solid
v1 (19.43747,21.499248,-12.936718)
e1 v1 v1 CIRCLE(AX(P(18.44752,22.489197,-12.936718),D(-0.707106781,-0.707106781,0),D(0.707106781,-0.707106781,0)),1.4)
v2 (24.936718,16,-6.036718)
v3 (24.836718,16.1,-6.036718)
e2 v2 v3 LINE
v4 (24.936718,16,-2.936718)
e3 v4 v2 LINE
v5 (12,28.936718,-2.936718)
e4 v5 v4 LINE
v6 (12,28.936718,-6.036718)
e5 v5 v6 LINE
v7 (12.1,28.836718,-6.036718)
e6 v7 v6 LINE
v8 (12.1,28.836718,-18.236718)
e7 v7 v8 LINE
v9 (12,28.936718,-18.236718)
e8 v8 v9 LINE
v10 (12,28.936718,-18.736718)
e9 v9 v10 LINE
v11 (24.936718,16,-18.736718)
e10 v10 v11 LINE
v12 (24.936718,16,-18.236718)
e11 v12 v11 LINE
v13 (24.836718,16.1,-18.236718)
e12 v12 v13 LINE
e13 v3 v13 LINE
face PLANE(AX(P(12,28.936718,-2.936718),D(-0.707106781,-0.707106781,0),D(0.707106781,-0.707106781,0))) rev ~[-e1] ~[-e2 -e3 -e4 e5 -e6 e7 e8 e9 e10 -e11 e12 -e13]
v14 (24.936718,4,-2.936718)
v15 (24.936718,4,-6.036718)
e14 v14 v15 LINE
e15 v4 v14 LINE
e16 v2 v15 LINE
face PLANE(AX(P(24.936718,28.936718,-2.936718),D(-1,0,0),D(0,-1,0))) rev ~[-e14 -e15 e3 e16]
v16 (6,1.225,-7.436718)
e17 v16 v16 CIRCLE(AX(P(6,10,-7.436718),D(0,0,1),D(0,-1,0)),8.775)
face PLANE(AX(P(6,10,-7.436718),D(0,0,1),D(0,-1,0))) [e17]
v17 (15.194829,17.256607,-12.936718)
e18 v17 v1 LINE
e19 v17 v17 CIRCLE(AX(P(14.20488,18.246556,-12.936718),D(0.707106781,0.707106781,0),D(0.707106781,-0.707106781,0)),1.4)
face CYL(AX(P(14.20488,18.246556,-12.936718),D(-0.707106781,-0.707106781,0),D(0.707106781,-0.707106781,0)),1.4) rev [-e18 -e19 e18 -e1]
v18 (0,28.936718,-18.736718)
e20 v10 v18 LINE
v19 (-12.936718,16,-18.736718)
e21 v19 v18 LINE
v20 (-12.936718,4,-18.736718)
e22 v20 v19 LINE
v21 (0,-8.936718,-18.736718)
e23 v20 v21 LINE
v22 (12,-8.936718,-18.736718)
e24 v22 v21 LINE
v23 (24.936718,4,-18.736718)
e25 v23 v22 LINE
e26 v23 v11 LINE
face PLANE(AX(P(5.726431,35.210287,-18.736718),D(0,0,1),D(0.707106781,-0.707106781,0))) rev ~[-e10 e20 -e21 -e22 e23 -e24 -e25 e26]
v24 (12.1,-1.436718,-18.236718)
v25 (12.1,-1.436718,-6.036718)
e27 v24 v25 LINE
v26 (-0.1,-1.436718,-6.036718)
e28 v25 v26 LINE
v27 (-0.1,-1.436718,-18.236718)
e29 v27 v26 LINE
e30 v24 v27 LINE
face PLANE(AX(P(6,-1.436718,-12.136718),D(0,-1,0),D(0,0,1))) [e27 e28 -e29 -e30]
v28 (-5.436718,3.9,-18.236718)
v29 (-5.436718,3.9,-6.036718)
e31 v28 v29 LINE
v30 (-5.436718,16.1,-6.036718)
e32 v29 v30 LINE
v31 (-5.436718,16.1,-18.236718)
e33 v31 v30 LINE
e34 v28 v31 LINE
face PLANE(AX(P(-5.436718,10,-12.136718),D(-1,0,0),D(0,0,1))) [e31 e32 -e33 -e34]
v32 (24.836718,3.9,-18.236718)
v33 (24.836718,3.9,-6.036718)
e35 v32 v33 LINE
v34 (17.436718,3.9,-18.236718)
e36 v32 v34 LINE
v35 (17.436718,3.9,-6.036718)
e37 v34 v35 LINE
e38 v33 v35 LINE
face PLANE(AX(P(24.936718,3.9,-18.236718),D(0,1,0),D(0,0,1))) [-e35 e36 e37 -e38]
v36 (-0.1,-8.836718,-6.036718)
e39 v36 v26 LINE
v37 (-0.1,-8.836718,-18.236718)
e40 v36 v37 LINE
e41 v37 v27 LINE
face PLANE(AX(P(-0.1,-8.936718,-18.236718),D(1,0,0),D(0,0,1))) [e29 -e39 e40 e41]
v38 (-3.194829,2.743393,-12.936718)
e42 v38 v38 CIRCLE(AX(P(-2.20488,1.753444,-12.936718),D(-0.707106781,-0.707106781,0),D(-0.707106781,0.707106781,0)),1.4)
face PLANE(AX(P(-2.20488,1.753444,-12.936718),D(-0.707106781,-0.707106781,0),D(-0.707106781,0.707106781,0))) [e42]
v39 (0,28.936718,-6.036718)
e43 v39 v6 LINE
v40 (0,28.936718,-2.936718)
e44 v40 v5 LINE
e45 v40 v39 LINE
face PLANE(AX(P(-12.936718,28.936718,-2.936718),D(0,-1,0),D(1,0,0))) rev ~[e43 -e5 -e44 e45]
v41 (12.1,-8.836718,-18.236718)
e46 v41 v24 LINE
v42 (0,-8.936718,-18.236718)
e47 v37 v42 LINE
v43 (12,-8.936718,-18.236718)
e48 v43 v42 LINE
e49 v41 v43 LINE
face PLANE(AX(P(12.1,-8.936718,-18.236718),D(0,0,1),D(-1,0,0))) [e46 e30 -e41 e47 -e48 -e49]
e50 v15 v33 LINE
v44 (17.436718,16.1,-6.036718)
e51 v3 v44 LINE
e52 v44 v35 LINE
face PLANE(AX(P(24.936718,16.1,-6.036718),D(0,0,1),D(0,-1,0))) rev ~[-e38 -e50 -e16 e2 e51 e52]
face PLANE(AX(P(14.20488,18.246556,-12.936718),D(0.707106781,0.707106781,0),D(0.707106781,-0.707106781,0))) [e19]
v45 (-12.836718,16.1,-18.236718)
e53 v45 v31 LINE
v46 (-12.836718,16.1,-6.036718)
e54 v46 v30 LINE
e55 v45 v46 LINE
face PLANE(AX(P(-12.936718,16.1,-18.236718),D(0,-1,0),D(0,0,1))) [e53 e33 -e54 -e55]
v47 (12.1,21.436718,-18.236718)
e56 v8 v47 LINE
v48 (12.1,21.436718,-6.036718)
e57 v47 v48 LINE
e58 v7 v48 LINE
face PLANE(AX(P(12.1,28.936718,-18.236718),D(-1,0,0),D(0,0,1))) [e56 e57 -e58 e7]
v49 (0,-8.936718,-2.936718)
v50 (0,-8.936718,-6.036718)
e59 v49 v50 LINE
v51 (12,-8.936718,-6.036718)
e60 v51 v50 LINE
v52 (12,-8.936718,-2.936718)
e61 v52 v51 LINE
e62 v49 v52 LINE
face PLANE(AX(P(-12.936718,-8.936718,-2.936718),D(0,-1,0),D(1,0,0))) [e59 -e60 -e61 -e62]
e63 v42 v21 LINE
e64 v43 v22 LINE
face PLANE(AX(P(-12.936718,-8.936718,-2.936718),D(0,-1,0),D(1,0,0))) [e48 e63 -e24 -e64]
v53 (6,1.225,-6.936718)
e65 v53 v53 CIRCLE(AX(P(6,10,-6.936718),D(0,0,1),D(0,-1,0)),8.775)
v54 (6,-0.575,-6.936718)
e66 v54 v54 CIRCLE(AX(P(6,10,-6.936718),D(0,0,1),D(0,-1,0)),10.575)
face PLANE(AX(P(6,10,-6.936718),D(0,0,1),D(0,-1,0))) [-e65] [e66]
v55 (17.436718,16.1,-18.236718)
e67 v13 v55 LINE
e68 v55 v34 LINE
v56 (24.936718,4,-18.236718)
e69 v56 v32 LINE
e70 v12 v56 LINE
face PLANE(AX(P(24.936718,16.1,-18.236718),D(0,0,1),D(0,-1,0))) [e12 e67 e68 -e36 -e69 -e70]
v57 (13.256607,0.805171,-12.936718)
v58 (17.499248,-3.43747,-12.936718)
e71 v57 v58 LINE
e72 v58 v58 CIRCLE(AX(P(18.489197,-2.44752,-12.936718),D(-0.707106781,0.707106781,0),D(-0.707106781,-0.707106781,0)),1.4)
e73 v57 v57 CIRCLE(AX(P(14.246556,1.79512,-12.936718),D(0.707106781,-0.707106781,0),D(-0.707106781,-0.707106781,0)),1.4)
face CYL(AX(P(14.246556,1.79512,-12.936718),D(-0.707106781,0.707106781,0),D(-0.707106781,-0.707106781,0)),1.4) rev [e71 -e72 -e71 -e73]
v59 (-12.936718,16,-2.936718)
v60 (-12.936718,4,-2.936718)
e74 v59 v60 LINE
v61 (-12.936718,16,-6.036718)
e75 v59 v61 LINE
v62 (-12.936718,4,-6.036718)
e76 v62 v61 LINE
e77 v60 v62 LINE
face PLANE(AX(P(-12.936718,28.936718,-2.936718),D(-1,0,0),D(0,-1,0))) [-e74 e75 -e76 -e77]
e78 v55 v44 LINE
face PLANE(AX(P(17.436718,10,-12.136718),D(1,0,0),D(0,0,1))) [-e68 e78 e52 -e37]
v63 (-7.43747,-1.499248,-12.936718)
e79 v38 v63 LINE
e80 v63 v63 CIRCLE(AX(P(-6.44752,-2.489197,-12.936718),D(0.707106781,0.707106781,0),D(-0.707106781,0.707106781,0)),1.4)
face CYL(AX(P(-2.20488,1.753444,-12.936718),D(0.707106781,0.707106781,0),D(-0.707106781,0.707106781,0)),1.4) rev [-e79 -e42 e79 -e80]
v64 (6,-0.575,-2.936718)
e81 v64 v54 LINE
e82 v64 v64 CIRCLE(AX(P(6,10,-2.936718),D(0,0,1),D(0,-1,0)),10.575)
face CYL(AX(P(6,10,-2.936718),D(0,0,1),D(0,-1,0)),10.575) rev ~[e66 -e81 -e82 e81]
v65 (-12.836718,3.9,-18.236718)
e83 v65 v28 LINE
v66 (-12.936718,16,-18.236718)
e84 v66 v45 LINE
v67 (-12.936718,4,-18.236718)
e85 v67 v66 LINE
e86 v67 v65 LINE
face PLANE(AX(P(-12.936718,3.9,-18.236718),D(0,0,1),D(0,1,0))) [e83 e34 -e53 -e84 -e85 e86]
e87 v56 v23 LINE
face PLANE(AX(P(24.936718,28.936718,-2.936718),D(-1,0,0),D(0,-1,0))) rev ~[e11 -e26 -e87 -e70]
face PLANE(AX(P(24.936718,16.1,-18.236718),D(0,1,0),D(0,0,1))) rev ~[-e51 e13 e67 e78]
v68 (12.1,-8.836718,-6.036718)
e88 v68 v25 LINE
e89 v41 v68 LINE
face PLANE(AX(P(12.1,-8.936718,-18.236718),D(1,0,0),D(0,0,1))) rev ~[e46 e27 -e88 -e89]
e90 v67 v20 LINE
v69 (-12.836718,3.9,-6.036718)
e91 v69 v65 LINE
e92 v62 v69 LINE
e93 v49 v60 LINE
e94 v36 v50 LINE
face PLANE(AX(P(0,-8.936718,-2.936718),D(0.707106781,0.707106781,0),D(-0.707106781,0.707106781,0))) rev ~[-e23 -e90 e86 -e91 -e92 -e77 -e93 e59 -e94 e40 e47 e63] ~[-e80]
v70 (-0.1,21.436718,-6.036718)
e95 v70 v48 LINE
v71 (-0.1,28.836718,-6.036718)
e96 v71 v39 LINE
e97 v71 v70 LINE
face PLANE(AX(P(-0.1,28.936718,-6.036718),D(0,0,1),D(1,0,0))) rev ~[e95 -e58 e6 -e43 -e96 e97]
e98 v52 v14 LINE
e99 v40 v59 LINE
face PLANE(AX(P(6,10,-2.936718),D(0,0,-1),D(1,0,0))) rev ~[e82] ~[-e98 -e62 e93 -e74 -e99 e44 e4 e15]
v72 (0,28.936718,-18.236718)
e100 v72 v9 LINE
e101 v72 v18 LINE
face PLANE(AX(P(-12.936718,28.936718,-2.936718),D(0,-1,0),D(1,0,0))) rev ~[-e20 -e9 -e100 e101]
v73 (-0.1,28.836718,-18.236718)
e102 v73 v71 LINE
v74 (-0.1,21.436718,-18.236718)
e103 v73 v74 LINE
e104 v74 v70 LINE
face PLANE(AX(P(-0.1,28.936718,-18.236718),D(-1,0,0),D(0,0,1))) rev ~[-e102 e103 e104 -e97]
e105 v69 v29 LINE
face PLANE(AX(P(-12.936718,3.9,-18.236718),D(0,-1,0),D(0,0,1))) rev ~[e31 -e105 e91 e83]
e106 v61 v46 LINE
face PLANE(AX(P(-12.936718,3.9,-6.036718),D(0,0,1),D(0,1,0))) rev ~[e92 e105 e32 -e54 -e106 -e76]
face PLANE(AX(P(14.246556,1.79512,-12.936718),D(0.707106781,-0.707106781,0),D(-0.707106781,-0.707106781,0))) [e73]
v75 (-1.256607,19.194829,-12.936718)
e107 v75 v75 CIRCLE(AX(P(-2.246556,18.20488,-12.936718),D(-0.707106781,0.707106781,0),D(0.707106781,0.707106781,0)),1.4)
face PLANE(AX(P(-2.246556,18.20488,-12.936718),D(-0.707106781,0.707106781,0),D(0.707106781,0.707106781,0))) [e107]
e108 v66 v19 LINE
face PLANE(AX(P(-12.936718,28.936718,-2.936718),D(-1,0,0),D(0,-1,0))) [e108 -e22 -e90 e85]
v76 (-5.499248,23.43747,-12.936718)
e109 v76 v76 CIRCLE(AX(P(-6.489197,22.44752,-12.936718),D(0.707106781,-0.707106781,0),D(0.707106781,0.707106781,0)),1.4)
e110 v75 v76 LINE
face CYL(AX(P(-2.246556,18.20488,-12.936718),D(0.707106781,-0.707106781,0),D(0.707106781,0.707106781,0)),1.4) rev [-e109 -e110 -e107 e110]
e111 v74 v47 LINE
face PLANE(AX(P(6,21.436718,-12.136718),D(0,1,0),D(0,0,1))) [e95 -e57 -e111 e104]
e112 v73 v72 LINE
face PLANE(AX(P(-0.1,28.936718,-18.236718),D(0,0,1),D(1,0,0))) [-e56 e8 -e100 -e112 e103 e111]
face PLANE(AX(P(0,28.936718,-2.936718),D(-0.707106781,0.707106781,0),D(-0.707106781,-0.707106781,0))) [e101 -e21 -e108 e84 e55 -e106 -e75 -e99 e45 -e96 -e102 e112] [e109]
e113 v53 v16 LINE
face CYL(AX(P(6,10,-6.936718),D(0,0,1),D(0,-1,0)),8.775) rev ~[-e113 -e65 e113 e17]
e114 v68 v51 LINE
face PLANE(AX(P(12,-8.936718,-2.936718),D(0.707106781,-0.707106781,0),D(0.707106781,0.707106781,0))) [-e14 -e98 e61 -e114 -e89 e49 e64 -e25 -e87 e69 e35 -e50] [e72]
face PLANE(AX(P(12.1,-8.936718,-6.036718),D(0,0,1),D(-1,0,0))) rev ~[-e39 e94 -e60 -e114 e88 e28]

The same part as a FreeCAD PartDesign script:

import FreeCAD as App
import Part
import Sketcher

V = App.Vector


def edges_at(feature, points):
    """Names of the edges that pass closest to the given points."""
    edges = feature.Shape.Edges
    near = lambda p: min(range(len(edges)), key=lambda i: edges[i].distToShape(Part.Vertex(*p))[0])
    return sorted({f"Edge{near(p) + 1}" for p in points})


def add_polygon(sketch, points):
    """Adds a closed chain of lines whose ends are joined by coincident constraints."""
    first, n = sketch.GeometryCount, len(points)
    for a, b in zip(points, points[1:] + points[:1]):
        sketch.addGeometry(Part.LineSegment(App.Vector(*a, 0), App.Vector(*b, 0)), False)
    for i in range(n):
        sketch.addConstraint(Sketcher.Constraint("Coincident", first + i, 2, first + (i + 1) % n, 1))

doc = App.newDocument("Part")
body = doc.addObject("PartDesign::Body", "Body")

sketch1 = body.newObject("Sketcher::SketchObject", "Sketch")
sketch1.AttachmentSupport = (doc.getObject("XZ_Plane"), [""])
sketch1.MapMode = "FlatFace"
add_polygon(sketch1, [(-13, -32), (-13, 6), (25, 6), (25, -32)])
sketch1.addConstraint(Sketcher.Constraint("Vertical", 0))
sketch1.addConstraint(Sketcher.Constraint("Horizontal", 1))
sketch1.addConstraint(Sketcher.Constraint("Vertical", 2))
sketch1.addConstraint(Sketcher.Constraint("Horizontal", 3))
sketch1.addConstraint(Sketcher.Constraint("Equal", 3, 0))
sketch1.addConstraint(Sketcher.Constraint("DistanceY", -1, 1, 0, 2, 6.0))
sketch1.addConstraint(Sketcher.Constraint("DistanceX", 1, 1, 1, 2, 37.873435))
sketch1.addConstraint(Sketcher.Constraint("DistanceX", 0, 2, -1, 1, 12.936718))
pad1 = body.newObject("PartDesign::Pad", "Pad")
pad1.Profile = sketch1
pad1.Length = 20
pad1.Reversed = True

sketch2 = body.newObject("Sketcher::SketchObject", "Sketch001")
sketch2.AttachmentSupport = (doc.getObject("XZ_Plane"), [""])
sketch2.MapMode = "FlatFace"
sketch2.addGeometry(Part.Circle(V(6, -13, 0), V(0, 0, 1), 11), False)
sketch2.addConstraint(Sketcher.Constraint("Diameter", 0, 21.15))
sketch2.addConstraint(Sketcher.Constraint("DistanceX", -1, 1, 0, 3, 6.0))
sketch2.addConstraint(Sketcher.Constraint("DistanceY", 0, 3, -1, 1, 12.936718))
pocket1 = body.newObject("PartDesign::Pocket", "Pocket")
pocket1.Profile = sketch2
pocket1.Length = 4

sketch3 = body.newObject("Sketcher::SketchObject", "Sketch002")
sketch3.AttachmentSupport = (doc.getObject("XY_Plane"), [""])
sketch3.MapMode = "FlatFace"
sketch3.AttachmentOffset = App.Placement(V(0, 0, 6), App.Rotation())
add_polygon(sketch3, [(0, 15), (0, 3), (12, 3), (12, 15)])
sketch3.addConstraint(Sketcher.Constraint("Vertical", 0))
sketch3.addConstraint(Sketcher.Constraint("Horizontal", 1))
sketch3.addConstraint(Sketcher.Constraint("Vertical", 2))
sketch3.addConstraint(Sketcher.Constraint("Horizontal", 3))
sketch3.addConstraint(Sketcher.Constraint("PointOnObject", 0, 2, -2))
sketch3.addConstraint(Sketcher.Constraint("Equal", 3, 0))
sketch3.addConstraint(Sketcher.Constraint("DistanceX", 1, 1, 1, 2, 12.0))
sketch3.addConstraint(Sketcher.Constraint("DistanceY", -1, 1, 0, 2, 3.2))
pocket2 = body.newObject("PartDesign::Pocket", "Pocket001")
pocket2.Profile = sketch3
pocket2.Length = 7.5
doc.recompute()

fillet = body.newObject("PartDesign::Fillet", "Fillet")
fillet.Base = (pocket2, edges_at(pocket2, [
    (24.937, 10, -31.873),
    (24.937, 10, 6),
    (-12.937, 10, 6),
    (-12.937, 10, -31.873),
]))
fillet.Radius = 8
doc.recompute()

datumline = body.newObject("PartDesign::Line", "DatumLine")
datumline.Placement = App.Placement(V(6, 0, -12.936718), App.Rotation(V(0, 0, 1), V(0, 1, 0)))
polarpattern = body.newObject("PartDesign::PolarPattern", "PolarPattern")
polarpattern.Originals = [pocket2]
polarpattern.Axis = (datumline, [""])
polarpattern.Angle = 360
polarpattern.Occurrences = 4
body.Tip = polarpattern

sketch4 = body.newObject("Sketcher::SketchObject", "Sketch003")
sketch4.AttachmentSupport = (doc.getObject("XZ_Plane"), [""])
sketch4.MapMode = "FlatFace"
sketch4.AttachmentOffset = App.Placement(V(0, 0, -4), App.Rotation())
sketch4.addGeometry(Part.Circle(V(6, -13, 0), V(0, 0, 1), 9), False)
sketch4.addConstraint(Sketcher.Constraint("Diameter", 0, 17.55))
sketch4.addConstraint(Sketcher.Constraint("DistanceX", -1, 1, 0, 3, 6.0))
sketch4.addConstraint(Sketcher.Constraint("DistanceY", 0, 3, -1, 1, 12.936718))
pocket3 = body.newObject("PartDesign::Pocket", "Pocket002")
pocket3.Profile = sketch4
pocket3.Length = 0.5
body2 = doc.addObject("PartDesign::Body", "Body001")
doc.recompute()

body.Placement = App.Placement(V(0, 22.936718, -2.936718), App.Rotation(V(-1, 0, 0), 90))
boolean = body2.newObject("PartDesign::Boolean", "Boolean")
boolean.Type = "Fuse"
boolean.addObjects([body])

sketch5 = body2.newObject("Sketcher::SketchObject", "Sketch004")
sketch5.AttachmentSupport = (doc.getObject("XY_Plane001"), [""])
sketch5.MapMode = "FlatFace"
sketch5.AttachmentOffset = App.Placement(V(0, 0, -2.936718), App.Rotation())
add_polygon(sketch5, [(-13, 16), (0, 29), (-13, 29)])
add_polygon(sketch5, [(25, 16), (25, 29), (12, 29)])
add_polygon(sketch5, [(25, 4), (12, -9), (25, -9)])
add_polygon(sketch5, [(-13, -9), (0, -9), (-13, 4)])
sketch5.addConstraint(Sketcher.Constraint("Horizontal", 1))
sketch5.addConstraint(Sketcher.Constraint("Vertical", 2))
sketch5.addConstraint(Sketcher.Constraint("Vertical", 3))
sketch5.addConstraint(Sketcher.Constraint("Horizontal", 4))
sketch5.addConstraint(Sketcher.Constraint("Horizontal", 7))
sketch5.addConstraint(Sketcher.Constraint("Vertical", 8))
sketch5.addConstraint(Sketcher.Constraint("Horizontal", 9))
sketch5.addConstraint(Sketcher.Constraint("Vertical", 11))
sketch5.addConstraint(Sketcher.Constraint("PointOnObject", 0, 2, -2))
sketch5.addConstraint(Sketcher.Constraint("PointOnObject", 9, 2, -2))
sketch5.addConstraint(Sketcher.Constraint("Perpendicular", 0, 5))
sketch5.addConstraint(Sketcher.Constraint("Perpendicular", 5, 6))
sketch5.addConstraint(Sketcher.Constraint("Perpendicular", 6, 10))
sketch5.addConstraint(Sketcher.Constraint("Horizontal", 1, 2, 3, 2))
sketch5.addConstraint(Sketcher.Constraint("Horizontal", 2, 2, 5, 2))
sketch5.addConstraint(Sketcher.Constraint("Horizontal", 7, 2, 9, 2))
sketch5.addConstraint(Sketcher.Constraint("Horizontal", 8, 2, 10, 2))
sketch5.addConstraint(Sketcher.Constraint("Vertical", 4, 2, 6, 2))
sketch5.addConstraint(Sketcher.Constraint("Vertical", 5, 2, 7, 2))
sketch5.addConstraint(Sketcher.Constraint("Vertical", 2, 2, 10, 2))
sketch5.addConstraint(Sketcher.Constraint("DistanceY", -1, 1, 2, 2, 16.0))
sketch5.addConstraint(Sketcher.Constraint("DistanceX", -1, 1, 4, 2, 12.0))
sketch5.addConstraint(Sketcher.Constraint("DistanceY", -1, 1, 8, 2, 4.0))
sketch5.addConstraint(Sketcher.Constraint("Distance", 0, 18.295281))
pocket4 = body2.newObject("PartDesign::Pocket", "Pocket003")
pocket4.Profile = sketch5
pocket4.Type = "ThroughAll"

sketch6 = body2.newObject("Sketcher::SketchObject", "Sketch005")
sketch6.Placement = App.Placement(V(-10.225718, 10.225718, 0), App.Rotation(V(0.707106781, 0.707106781, 0), V(0, 0, -0.999999999), V(-0.707106781, 0.707106781, 0), "ZXY"))
sketch6.addGeometry(Part.Circle(V(11.3, 12.9, 0), V(0, 0, 1), 1.4), False)
sketch6.addConstraint(Sketcher.Constraint("Diameter", 0, 2.8))
sketch6.addConstraint(Sketcher.Constraint("DistanceX", -1, 1, 0, 3, 11.284239))
sketch6.addConstraint(Sketcher.Constraint("DistanceY", -1, 1, 0, 3, 12.936718))
pocket5 = body2.newObject("PartDesign::Pocket", "Pocket004")
pocket5.Profile = sketch6
pocket5.Length = 16
pocket5.Reversed = True
doc.recompute()

datumline2 = body2.newObject("PartDesign::Line", "DatumLine001")
datumline2.Placement = App.Placement(V(6, 10, 0), App.Rotation(V(0, 0, 1), V(0, 0, 1)))
polarpattern2 = body2.newObject("PartDesign::PolarPattern", "PolarPattern001")
polarpattern2.Originals = [pocket5]
polarpattern2.Axis = (datumline2, [""])
polarpattern2.Angle = 360
polarpattern2.Occurrences = 4
body2.Tip = polarpattern2

sketch7 = body2.newObject("Sketcher::SketchObject", "Sketch006")
sketch7.Placement = App.Placement(V(20.468359, 20.468359, 0), App.Rotation(V(0.707106781, -0.707106781, 0), V(0, 0, -0.999999999), V(0.707106781, 0.707106781, 0), "ZXY"))
add_polygon(sketch7, [(-21, 28), (-21, 19), (15, 19), (15, 28)])
sketch7.addConstraint(Sketcher.Constraint("Vertical", 0))
sketch7.addConstraint(Sketcher.Constraint("Horizontal", 1))
sketch7.addConstraint(Sketcher.Constraint("Vertical", 2))
sketch7.addConstraint(Sketcher.Constraint("Horizontal", 3))
sketch7.addConstraint(Sketcher.Constraint("DistanceX", 1, 1, 1, 2, 35.65273))
sketch7.addConstraint(Sketcher.Constraint("DistanceY", 0, 2, 0, 1, 9.373532))
sketch7.addConstraint(Sketcher.Constraint("DistanceY", -1, 1, 2, 2, 28.110249))
sketch7.addConstraint(Sketcher.Constraint("DistanceX", 0, 2, -1, 1, 20.848235))
pocket6 = body2.newObject("PartDesign::Pocket", "Pocket005")
pocket6.Profile = sketch7
pocket6.Type = "ThroughAll"

sketch8 = body2.newObject("Sketcher::SketchObject", "Sketch007")
sketch8.AttachmentSupport = (doc.getObject("YZ_Plane001"), [""])
sketch8.MapMode = "FlatFace"
sketch8.AttachmentOffset = App.Placement(V(0, 0, -12.936718), App.Rotation())
add_polygon(sketch8, [(16, -18), (4, -18), (4, -6), (16, -6)])
sketch8.addConstraint(Sketcher.Constraint("Horizontal", 0))
sketch8.addConstraint(Sketcher.Constraint("Vertical", 1))
sketch8.addConstraint(Sketcher.Constraint("Horizontal", 2))
sketch8.addConstraint(Sketcher.Constraint("Vertical", 3))
sketch8.addConstraint(Sketcher.Constraint("Equal", 2, 1))
sketch8.addConstraint(Sketcher.Constraint("DistanceX", 0, 2, 0, 1, 12.2))
sketch8.addConstraint(Sketcher.Constraint("DistanceX", -1, 1, 0, 2, 3.9))
sketch8.addConstraint(Sketcher.Constraint("DistanceY", 0, 2, -1, 1, 18.236718))
pocket7 = body2.newObject("PartDesign::Pocket", "Pocket006")
pocket7.Profile = sketch8
pocket7.Length = 7.5
pocket7.Reversed = True
doc.recompute()

datumline3 = body2.newObject("PartDesign::Line", "DatumLine002")
datumline3.Placement = App.Placement(V(6, 10, 0), App.Rotation(V(0, 0, 1), V(0, 0, 1)))
polarpattern3 = body2.newObject("PartDesign::PolarPattern", "PolarPattern002")
polarpattern3.Originals = [pocket7]
polarpattern3.Axis = (datumline3, [""])
polarpattern3.Angle = 360
polarpattern3.Occurrences = 4
body2.Tip = polarpattern3

doc.recompute()
